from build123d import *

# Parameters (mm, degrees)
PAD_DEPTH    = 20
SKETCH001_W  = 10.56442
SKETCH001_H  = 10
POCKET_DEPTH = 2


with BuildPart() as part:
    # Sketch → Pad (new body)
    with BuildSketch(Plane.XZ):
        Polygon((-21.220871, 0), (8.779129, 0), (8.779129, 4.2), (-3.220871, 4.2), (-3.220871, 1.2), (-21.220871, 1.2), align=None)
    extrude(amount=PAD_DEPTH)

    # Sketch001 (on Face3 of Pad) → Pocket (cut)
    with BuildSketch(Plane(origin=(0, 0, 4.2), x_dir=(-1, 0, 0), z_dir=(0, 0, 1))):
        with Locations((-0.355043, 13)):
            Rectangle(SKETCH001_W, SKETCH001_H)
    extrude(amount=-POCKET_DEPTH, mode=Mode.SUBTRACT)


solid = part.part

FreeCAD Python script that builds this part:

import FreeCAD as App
import Part
import Sketcher

V = App.Vector


def add_polygon(sketch, points):
    """Adds a closed chain of lines whose ends are joined by coincident constraints."""
    first, n = sketch.GeometryCount, len(points)
    for a, b in zip(points, points[1:] + points[:1]):
        sketch.addGeometry(Part.LineSegment(App.Vector(*a, 0), App.Vector(*b, 0)), False)
    for i in range(n):
        sketch.addConstraint(Sketcher.Constraint("Coincident", first + i, 2, first + (i + 1) % n, 1))

doc = App.newDocument("Part")
body = doc.addObject("PartDesign::Body", "Body")

sketch1 = body.newObject("Sketcher::SketchObject", "Sketch")
sketch1.AttachmentSupport = (doc.getObject("XZ_Plane"), [""])
sketch1.MapMode = "FlatFace"
add_polygon(sketch1, [(-21.220871, 0), (8.779129, 0), (8.779129, 4.2), (-3.220871, 4.2), (-3.220871, 1.2), (-21.220871, 1.2)])
sketch1.addConstraint(Sketcher.Constraint("Horizontal", 0))
sketch1.addConstraint(Sketcher.Constraint("Vertical", 1))
sketch1.addConstraint(Sketcher.Constraint("Horizontal", 2))
sketch1.addConstraint(Sketcher.Constraint("Vertical", 3))
sketch1.addConstraint(Sketcher.Constraint("Horizontal", 4))
sketch1.addConstraint(Sketcher.Constraint("Vertical", 5))
sketch1.addConstraint(Sketcher.Constraint("PointOnObject", 0, 2, -1))
sketch1.addConstraint(Sketcher.Constraint("DistanceX", 0, 1, 0, 2, 30.0))
sketch1.addConstraint(Sketcher.Constraint("DistanceX", 2, 2, 2, 1, 12.0))
sketch1.addConstraint(Sketcher.Constraint("DistanceY", 3, 2, 3, 1, 3.0))
sketch1.addConstraint(Sketcher.Constraint("DistanceY", 1, 1, 1, 2, 4.2))
sketch1.addConstraint(Sketcher.Constraint("DistanceX", -1, 1, 0, 2, 8.779129))
pad1 = body.newObject("PartDesign::Pad", "Pad")
pad1.Profile = sketch1
pad1.Length = 20

sketch2 = body.newObject("Sketcher::SketchObject", "Sketch001")
sketch2.AttachmentSupport = (doc.getObject("XY_Plane"), [""])
sketch2.MapMode = "FlatFace"
sketch2.AttachmentOffset = App.Placement(V(0, 0, 4.2), App.Rotation())
add_polygon(sketch2, [(5.637253, -18), (5.637253, -8), (-4.927167, -8), (-4.927167, -18)])
sketch2.addConstraint(Sketcher.Constraint("Vertical", 0))
sketch2.addConstraint(Sketcher.Constraint("Horizontal", 1))
sketch2.addConstraint(Sketcher.Constraint("Vertical", 2))
sketch2.addConstraint(Sketcher.Constraint("Horizontal", 3))
sketch2.addConstraint(Sketcher.Constraint("DistanceY", 0, 1, 0, 2, 10.0))
sketch2.addConstraint(Sketcher.Constraint("DistanceY", 0, 2, -1, 1, 8.0))
sketch2.addConstraint(Sketcher.Constraint("DistanceX", 1, 2, 1, 1, 10.56442))
sketch2.addConstraint(Sketcher.Constraint("DistanceX", -1, 1, 0, 2, 5.637253))
pocket1 = body.newObject("PartDesign::Pocket", "Pocket")
pocket1.Profile = sketch2
pocket1.Length = 2

doc.recompute()
